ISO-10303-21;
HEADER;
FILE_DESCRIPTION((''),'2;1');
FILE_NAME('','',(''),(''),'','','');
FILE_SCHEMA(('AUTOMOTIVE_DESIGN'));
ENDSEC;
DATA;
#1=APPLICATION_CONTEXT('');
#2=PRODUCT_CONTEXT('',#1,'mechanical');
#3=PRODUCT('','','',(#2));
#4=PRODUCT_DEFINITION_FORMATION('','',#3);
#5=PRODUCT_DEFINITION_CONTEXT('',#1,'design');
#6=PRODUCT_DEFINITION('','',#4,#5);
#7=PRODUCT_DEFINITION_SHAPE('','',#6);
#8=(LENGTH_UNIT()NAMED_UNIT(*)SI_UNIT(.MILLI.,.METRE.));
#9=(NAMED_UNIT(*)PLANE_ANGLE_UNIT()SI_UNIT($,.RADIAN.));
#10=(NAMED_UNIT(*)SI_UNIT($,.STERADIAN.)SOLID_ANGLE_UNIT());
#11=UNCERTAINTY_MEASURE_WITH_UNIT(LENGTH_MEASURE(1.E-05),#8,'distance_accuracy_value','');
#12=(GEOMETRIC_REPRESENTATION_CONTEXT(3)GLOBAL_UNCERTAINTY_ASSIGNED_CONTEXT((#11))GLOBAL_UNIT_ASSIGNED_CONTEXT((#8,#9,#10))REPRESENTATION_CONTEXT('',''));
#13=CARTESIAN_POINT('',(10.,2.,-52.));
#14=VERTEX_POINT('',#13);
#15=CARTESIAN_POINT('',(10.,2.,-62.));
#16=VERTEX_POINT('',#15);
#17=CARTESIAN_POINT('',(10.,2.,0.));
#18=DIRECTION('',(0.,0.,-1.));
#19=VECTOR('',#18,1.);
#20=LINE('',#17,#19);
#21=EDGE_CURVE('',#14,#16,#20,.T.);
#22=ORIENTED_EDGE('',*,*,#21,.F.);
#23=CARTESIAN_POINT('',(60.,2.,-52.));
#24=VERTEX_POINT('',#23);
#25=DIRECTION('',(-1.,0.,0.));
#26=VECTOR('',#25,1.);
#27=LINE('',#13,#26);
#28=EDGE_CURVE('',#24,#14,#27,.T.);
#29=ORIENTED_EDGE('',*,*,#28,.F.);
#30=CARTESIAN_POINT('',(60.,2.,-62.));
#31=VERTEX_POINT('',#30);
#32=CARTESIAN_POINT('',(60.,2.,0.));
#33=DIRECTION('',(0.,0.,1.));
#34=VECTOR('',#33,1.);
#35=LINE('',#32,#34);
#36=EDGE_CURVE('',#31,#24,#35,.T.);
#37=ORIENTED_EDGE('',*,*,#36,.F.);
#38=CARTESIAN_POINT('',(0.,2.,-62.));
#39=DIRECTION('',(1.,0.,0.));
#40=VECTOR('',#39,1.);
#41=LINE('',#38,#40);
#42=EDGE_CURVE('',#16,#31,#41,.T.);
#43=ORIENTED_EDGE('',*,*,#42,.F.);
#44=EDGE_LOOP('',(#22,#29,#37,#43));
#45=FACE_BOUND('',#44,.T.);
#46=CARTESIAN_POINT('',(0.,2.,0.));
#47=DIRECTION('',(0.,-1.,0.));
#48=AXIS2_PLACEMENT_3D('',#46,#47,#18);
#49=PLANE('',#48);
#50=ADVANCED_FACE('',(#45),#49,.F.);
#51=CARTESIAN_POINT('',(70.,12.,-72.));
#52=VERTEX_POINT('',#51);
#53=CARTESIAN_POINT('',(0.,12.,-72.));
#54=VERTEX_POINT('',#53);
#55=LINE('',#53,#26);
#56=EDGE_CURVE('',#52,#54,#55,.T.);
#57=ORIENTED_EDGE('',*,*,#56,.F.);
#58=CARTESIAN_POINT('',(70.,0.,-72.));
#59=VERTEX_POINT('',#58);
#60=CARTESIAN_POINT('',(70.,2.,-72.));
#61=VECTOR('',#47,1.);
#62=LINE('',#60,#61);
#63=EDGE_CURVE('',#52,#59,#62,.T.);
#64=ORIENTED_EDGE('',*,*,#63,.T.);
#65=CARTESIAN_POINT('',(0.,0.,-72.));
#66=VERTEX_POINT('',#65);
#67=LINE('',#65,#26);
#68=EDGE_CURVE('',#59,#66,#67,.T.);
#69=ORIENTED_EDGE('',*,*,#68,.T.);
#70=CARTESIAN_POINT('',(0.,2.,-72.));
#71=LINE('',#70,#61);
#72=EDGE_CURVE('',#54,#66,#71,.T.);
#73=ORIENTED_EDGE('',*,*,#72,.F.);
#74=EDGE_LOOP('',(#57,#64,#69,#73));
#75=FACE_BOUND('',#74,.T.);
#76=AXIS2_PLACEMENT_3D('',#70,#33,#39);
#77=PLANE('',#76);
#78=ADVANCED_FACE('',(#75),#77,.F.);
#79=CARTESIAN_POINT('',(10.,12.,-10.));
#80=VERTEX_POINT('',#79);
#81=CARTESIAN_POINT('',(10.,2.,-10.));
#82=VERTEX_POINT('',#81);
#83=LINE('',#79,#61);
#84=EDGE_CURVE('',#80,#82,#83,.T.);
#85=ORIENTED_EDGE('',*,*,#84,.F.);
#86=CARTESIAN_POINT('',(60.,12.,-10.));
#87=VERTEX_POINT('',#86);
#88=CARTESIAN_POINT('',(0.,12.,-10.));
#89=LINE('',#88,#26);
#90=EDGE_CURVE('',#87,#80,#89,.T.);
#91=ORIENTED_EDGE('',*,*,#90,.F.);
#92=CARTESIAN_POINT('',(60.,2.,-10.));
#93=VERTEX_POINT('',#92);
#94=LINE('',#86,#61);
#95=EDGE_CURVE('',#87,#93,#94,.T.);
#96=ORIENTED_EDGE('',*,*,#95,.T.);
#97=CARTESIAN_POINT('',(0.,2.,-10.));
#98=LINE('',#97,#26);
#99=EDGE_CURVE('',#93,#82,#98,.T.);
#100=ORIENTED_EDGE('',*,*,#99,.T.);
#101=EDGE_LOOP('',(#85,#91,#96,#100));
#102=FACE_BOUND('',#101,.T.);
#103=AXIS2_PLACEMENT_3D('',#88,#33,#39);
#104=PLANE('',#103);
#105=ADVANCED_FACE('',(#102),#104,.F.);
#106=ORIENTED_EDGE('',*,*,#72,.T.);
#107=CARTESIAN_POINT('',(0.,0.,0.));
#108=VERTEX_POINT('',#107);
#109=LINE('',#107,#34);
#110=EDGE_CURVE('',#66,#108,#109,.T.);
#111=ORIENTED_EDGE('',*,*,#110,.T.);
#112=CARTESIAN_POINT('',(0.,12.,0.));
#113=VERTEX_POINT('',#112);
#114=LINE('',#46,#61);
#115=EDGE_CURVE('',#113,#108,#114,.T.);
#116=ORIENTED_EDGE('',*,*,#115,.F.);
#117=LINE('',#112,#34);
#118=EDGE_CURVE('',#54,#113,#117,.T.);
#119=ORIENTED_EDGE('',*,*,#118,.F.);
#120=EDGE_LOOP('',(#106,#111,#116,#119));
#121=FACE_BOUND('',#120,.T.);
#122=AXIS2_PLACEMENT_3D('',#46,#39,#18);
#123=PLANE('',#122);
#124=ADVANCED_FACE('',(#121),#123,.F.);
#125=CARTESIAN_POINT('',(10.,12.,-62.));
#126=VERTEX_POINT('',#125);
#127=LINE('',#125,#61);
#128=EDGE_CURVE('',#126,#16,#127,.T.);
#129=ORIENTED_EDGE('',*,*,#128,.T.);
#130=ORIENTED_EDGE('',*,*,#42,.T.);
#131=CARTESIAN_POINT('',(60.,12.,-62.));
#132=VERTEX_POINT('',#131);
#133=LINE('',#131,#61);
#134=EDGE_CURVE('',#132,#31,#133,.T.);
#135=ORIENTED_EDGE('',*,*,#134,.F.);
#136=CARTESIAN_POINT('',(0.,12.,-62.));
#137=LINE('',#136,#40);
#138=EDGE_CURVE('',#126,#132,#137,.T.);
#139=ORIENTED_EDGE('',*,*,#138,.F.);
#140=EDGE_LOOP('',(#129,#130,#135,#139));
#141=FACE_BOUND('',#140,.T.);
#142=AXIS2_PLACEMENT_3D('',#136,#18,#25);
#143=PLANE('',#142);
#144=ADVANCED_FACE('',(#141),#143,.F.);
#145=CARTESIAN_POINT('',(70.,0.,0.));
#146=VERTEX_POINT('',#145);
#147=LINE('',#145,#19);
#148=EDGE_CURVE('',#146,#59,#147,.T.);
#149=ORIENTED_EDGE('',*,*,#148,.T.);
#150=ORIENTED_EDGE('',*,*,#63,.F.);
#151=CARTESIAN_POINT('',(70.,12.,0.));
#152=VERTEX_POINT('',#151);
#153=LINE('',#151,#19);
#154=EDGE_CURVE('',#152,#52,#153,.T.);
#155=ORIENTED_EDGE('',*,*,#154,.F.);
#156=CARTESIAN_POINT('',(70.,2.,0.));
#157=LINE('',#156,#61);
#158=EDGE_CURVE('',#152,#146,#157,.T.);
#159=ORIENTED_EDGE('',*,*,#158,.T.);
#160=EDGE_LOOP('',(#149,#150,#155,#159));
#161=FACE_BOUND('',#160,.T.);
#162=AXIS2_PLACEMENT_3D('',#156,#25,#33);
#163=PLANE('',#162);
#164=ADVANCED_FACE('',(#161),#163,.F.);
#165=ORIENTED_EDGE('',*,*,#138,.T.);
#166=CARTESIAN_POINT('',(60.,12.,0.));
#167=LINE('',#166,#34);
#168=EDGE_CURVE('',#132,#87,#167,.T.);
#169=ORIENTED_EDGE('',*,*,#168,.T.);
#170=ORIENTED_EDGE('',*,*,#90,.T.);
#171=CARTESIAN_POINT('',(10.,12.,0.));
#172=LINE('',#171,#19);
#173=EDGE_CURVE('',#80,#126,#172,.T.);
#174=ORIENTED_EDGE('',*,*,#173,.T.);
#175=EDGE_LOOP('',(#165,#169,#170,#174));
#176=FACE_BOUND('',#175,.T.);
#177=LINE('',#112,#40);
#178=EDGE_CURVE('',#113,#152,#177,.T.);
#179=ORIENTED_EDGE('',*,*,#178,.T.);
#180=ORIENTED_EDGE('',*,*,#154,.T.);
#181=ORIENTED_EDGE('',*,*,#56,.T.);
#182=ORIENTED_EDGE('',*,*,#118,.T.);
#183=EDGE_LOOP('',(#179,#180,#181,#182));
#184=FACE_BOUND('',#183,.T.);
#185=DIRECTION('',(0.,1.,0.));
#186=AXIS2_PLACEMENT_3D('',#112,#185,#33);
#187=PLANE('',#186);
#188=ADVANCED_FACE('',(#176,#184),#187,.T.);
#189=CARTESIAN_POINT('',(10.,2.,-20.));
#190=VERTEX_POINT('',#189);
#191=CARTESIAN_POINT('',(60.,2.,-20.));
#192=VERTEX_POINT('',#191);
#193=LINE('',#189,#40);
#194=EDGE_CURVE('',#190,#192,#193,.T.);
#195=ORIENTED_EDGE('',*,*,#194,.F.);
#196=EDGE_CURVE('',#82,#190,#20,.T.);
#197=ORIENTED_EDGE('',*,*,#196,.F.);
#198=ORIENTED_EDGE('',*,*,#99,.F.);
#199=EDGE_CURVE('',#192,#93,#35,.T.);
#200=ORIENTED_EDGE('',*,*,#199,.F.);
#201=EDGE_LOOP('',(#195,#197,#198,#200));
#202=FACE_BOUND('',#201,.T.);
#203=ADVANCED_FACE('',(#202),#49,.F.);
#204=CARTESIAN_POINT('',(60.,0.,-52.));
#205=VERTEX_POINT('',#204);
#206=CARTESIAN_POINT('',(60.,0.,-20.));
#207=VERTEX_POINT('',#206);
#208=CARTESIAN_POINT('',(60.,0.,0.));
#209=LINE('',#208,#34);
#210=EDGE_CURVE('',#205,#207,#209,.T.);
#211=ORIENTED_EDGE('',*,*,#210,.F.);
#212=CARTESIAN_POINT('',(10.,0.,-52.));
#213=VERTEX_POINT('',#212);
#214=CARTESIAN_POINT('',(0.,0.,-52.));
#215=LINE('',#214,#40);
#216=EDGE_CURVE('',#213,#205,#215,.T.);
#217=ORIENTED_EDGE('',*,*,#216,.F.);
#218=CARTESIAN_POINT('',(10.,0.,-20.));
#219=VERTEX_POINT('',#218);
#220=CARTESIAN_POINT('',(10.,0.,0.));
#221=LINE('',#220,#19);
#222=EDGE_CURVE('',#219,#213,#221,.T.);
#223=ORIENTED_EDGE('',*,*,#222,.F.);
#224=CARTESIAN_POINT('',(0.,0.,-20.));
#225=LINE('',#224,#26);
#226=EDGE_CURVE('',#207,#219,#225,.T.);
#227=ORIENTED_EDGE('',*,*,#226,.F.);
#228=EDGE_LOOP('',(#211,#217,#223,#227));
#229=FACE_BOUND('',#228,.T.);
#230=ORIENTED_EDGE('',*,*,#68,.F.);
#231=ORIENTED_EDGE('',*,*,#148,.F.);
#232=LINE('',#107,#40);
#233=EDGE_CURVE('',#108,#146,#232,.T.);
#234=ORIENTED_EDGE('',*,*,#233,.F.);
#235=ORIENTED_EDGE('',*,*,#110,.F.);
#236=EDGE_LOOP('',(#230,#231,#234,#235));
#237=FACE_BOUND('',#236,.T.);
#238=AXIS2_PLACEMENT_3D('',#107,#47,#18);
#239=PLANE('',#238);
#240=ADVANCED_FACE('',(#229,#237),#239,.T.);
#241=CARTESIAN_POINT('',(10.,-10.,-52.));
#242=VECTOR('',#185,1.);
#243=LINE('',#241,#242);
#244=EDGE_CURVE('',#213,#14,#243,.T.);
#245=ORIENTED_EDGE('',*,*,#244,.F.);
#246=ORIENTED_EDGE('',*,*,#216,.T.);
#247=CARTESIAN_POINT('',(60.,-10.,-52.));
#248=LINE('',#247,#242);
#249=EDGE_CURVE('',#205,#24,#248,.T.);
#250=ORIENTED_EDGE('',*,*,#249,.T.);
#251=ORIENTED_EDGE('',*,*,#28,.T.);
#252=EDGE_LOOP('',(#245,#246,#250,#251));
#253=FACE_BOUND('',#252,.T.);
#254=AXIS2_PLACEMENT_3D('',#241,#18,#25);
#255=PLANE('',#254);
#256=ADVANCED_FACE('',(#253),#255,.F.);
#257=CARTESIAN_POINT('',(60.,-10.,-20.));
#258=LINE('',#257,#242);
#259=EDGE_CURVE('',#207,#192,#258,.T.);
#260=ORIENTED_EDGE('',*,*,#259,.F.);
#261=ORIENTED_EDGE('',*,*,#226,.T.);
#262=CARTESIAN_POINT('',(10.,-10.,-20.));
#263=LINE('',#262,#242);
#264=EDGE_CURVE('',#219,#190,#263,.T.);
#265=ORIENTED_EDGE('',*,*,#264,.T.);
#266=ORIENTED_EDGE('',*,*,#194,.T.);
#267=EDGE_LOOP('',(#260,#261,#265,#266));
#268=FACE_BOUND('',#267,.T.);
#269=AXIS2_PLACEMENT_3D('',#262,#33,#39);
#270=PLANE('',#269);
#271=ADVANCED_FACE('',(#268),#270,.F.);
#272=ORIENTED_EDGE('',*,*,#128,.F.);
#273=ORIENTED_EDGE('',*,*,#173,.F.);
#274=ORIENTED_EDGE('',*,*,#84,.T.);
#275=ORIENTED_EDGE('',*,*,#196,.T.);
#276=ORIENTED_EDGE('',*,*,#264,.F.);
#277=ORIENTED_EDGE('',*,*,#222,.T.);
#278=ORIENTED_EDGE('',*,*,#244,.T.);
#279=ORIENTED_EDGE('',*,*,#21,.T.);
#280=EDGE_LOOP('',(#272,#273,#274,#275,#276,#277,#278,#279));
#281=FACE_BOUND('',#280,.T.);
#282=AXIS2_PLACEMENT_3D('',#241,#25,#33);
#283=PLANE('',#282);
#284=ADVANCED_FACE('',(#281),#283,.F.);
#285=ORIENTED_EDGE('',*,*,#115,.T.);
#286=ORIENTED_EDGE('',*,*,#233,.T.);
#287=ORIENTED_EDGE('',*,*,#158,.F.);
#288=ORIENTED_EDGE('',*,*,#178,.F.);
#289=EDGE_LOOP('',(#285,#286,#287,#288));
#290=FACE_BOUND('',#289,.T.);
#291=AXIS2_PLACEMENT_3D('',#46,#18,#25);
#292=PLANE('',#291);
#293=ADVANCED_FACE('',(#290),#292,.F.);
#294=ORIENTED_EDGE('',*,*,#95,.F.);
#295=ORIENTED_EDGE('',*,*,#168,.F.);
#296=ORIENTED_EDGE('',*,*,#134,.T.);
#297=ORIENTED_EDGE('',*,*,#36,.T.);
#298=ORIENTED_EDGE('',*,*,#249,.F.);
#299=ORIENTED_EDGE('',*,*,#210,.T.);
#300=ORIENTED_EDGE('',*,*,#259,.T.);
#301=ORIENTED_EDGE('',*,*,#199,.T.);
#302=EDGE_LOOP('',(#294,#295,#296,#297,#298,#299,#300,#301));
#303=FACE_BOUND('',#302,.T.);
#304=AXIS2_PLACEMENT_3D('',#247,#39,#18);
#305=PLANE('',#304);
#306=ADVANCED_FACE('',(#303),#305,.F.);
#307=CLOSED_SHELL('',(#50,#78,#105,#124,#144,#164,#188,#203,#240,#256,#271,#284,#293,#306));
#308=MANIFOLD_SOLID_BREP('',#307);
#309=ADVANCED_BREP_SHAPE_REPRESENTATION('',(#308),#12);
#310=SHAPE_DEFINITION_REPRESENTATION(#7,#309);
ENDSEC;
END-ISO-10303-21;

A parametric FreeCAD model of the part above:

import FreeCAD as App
import Part
import Sketcher

doc = App.newDocument("Part")
body = doc.addObject("PartDesign::Body", "Body")

# Sketch on XZ plane
sketch1 = body.newObject("Sketcher::SketchObject", "Sketch")
sketch1.AttachmentSupport = (doc.getObject("XZ_Plane"), [""])
sketch1.MapMode = "FlatFace"
sketch1.addGeometry(Part.LineSegment(App.Vector(0, -72, 0), App.Vector(0, 0, 0)), False)
sketch1.addGeometry(Part.LineSegment(App.Vector(0, 0, 0), App.Vector(70, 0, 0)), False)
sketch1.addGeometry(Part.LineSegment(App.Vector(70, 0, 0), App.Vector(70, -72, 0)), False)
sketch1.addGeometry(Part.LineSegment(App.Vector(70, -72, 0), App.Vector(0, -72, 0)), False)
sketch1.addConstraint(Sketcher.Constraint("Coincident", 0, 2, 1, 1))
sketch1.addConstraint(Sketcher.Constraint("Coincident", 1, 2, 2, 1))
sketch1.addConstraint(Sketcher.Constraint("Coincident", 2, 2, 3, 1))
sketch1.addConstraint(Sketcher.Constraint("Coincident", 3, 2, 0, 1))
sketch1.addConstraint(Sketcher.Constraint("Vertical", 0))
sketch1.addConstraint(Sketcher.Constraint("Horizontal", 1))
sketch1.addConstraint(Sketcher.Constraint("Vertical", 2))
sketch1.addConstraint(Sketcher.Constraint("Horizontal", 3))
sketch1.addConstraint(Sketcher.Constraint("Coincident", 0, 2, -1, 1))
sketch1.addConstraint(Sketcher.Constraint("DistanceX", 1, 1, 1, 2, 70.0))
sketch1.addConstraint(Sketcher.Constraint("DistanceY", 0, 1, 0, 2, 72.0))
pad1 = body.newObject("PartDesign::Pad", "Pad")
pad1.Profile = sketch1
pad1.Length = 2
pad1.Reversed = True

# Sketch on XZ plane
sketch2 = body.newObject("Sketcher::SketchObject", "Sketch001")
sketch2.AttachmentSupport = (doc.getObject("XZ_Plane"), [""])
sketch2.MapMode = "FlatFace"
sketch2.AttachmentOffset = App.Placement(App.Vector(0, 0, -2), App.Rotation())
sketch2.addGeometry(Part.LineSegment(App.Vector(10, -52, 0), App.Vector(10, -20, 0)), False)
sketch2.addGeometry(Part.LineSegment(App.Vector(10, -20, 0), App.Vector(60, -20, 0)), False)
sketch2.addGeometry(Part.LineSegment(App.Vector(60, -20, 0), App.Vector(60, -52, 0)), False)
sketch2.addGeometry(Part.LineSegment(App.Vector(60, -52, 0), App.Vector(10, -52, 0)), False)
sketch2.addConstraint(Sketcher.Constraint("Coincident", 0, 2, 1, 1))
sketch2.addConstraint(Sketcher.Constraint("Coincident", 1, 2, 2, 1))
sketch2.addConstraint(Sketcher.Constraint("Coincident", 2, 2, 3, 1))
sketch2.addConstraint(Sketcher.Constraint("Coincident", 3, 2, 0, 1))
sketch2.addConstraint(Sketcher.Constraint("Vertical", 0))
sketch2.addConstraint(Sketcher.Constraint("Horizontal", 1))
sketch2.addConstraint(Sketcher.Constraint("Vertical", 2))
sketch2.addConstraint(Sketcher.Constraint("Horizontal", 3))
sketch2.addConstraint(Sketcher.Constraint("DistanceX", 1, 1, 1, 2, 50.0))
sketch2.addConstraint(Sketcher.Constraint("DistanceY", 0, 1, 0, 2, 32.0))
sketch2.addConstraint(Sketcher.Constraint("DistanceX", -1, 1, 0, 2, 10.0))
sketch2.addConstraint(Sketcher.Constraint("DistanceY", 0, 2, -1, 1, 20.0))
pocket1 = body.newObject("PartDesign::Pocket", "Pocket")
pocket1.Profile = sketch2
pocket1.Length = 12
pocket1.Reversed = True

# Sketch on XZ plane
sketch3 = body.newObject("Sketcher::SketchObject", "Sketch002")
sketch3.AttachmentSupport = (doc.getObject("XZ_Plane"), [""])
sketch3.MapMode = "FlatFace"
sketch3.AttachmentOffset = App.Placement(App.Vector(0, 0, -2), App.Rotation())
sketch3.addGeometry(Part.LineSegment(App.Vector(70, 0, 0), App.Vector(70, -72, 0)), False)
sketch3.addGeometry(Part.LineSegment(App.Vector(70, -72, 0), App.Vector(0, -72, 0)), False)
sketch3.addGeometry(Part.LineSegment(App.Vector(0, -72, 0), App.Vector(0, 0, 0)), False)
sketch3.addGeometry(Part.LineSegment(App.Vector(0, 0, 0), App.Vector(70, 0, 0)), False)
sketch3.addGeometry(Part.LineSegment(App.Vector(10, -62, 0), App.Vector(60, -62, 0)), False)
sketch3.addGeometry(Part.LineSegment(App.Vector(60, -62, 0), App.Vector(60, -10, 0)), False)
sketch3.addGeometry(Part.LineSegment(App.Vector(60, -10, 0), App.Vector(10, -10, 0)), False)
sketch3.addGeometry(Part.LineSegment(App.Vector(10, -10, 0), App.Vector(10, -62, 0)), False)
sketch3.addConstraint(Sketcher.Constraint("Coincident", 0, 2, 1, 1))
sketch3.addConstraint(Sketcher.Constraint("Coincident", 1, 2, 2, 1))
sketch3.addConstraint(Sketcher.Constraint("Coincident", 2, 2, 3, 1))
sketch3.addConstraint(Sketcher.Constraint("Coincident", 3, 2, 0, 1))
sketch3.addConstraint(Sketcher.Constraint("Coincident", 4, 2, 5, 1))
sketch3.addConstraint(Sketcher.Constraint("Coincident", 5, 2, 6, 1))
sketch3.addConstraint(Sketcher.Constraint("Coincident", 6, 2, 7, 1))
sketch3.addConstraint(Sketcher.Constraint("Coincident", 7, 2, 4, 1))
sketch3.addConstraint(Sketcher.Constraint("Vertical", 0))
sketch3.addConstraint(Sketcher.Constraint("Horizontal", 1))
sketch3.addConstraint(Sketcher.Constraint("Vertical", 2))
sketch3.addConstraint(Sketcher.Constraint("Horizontal", 3))
sketch3.addConstraint(Sketcher.Constraint("Horizontal", 4))
sketch3.addConstraint(Sketcher.Constraint("Vertical", 5))
sketch3.addConstraint(Sketcher.Constraint("Horizontal", 6))
sketch3.addConstraint(Sketcher.Constraint("Vertical", 7))
sketch3.addConstraint(Sketcher.Constraint("Coincident", 2, 2, -1, 1))
sketch3.addConstraint(Sketcher.Constraint("DistanceX", 1, 2, 1, 1, 70.0))
sketch3.addConstraint(Sketcher.Constraint("DistanceX", 4, 1, 4, 2, 50.0))
sketch3.addConstraint(Sketcher.Constraint("DistanceY", 0, 2, 0, 1, 72.0))
sketch3.addConstraint(Sketcher.Constraint("DistanceY", 5, 1, 5, 2, 52.0))
sketch3.addConstraint(Sketcher.Constraint("DistanceX", -1, 1, 4, 2, 60.0))
sketch3.addConstraint(Sketcher.Constraint("DistanceY", 4, 2, -1, 1, 62.0))
pad2 = body.newObject("PartDesign::Pad", "Pad001")
pad2.Profile = sketch3
pad2.Length = 10
pad2.Reversed = True

doc.recompute()
